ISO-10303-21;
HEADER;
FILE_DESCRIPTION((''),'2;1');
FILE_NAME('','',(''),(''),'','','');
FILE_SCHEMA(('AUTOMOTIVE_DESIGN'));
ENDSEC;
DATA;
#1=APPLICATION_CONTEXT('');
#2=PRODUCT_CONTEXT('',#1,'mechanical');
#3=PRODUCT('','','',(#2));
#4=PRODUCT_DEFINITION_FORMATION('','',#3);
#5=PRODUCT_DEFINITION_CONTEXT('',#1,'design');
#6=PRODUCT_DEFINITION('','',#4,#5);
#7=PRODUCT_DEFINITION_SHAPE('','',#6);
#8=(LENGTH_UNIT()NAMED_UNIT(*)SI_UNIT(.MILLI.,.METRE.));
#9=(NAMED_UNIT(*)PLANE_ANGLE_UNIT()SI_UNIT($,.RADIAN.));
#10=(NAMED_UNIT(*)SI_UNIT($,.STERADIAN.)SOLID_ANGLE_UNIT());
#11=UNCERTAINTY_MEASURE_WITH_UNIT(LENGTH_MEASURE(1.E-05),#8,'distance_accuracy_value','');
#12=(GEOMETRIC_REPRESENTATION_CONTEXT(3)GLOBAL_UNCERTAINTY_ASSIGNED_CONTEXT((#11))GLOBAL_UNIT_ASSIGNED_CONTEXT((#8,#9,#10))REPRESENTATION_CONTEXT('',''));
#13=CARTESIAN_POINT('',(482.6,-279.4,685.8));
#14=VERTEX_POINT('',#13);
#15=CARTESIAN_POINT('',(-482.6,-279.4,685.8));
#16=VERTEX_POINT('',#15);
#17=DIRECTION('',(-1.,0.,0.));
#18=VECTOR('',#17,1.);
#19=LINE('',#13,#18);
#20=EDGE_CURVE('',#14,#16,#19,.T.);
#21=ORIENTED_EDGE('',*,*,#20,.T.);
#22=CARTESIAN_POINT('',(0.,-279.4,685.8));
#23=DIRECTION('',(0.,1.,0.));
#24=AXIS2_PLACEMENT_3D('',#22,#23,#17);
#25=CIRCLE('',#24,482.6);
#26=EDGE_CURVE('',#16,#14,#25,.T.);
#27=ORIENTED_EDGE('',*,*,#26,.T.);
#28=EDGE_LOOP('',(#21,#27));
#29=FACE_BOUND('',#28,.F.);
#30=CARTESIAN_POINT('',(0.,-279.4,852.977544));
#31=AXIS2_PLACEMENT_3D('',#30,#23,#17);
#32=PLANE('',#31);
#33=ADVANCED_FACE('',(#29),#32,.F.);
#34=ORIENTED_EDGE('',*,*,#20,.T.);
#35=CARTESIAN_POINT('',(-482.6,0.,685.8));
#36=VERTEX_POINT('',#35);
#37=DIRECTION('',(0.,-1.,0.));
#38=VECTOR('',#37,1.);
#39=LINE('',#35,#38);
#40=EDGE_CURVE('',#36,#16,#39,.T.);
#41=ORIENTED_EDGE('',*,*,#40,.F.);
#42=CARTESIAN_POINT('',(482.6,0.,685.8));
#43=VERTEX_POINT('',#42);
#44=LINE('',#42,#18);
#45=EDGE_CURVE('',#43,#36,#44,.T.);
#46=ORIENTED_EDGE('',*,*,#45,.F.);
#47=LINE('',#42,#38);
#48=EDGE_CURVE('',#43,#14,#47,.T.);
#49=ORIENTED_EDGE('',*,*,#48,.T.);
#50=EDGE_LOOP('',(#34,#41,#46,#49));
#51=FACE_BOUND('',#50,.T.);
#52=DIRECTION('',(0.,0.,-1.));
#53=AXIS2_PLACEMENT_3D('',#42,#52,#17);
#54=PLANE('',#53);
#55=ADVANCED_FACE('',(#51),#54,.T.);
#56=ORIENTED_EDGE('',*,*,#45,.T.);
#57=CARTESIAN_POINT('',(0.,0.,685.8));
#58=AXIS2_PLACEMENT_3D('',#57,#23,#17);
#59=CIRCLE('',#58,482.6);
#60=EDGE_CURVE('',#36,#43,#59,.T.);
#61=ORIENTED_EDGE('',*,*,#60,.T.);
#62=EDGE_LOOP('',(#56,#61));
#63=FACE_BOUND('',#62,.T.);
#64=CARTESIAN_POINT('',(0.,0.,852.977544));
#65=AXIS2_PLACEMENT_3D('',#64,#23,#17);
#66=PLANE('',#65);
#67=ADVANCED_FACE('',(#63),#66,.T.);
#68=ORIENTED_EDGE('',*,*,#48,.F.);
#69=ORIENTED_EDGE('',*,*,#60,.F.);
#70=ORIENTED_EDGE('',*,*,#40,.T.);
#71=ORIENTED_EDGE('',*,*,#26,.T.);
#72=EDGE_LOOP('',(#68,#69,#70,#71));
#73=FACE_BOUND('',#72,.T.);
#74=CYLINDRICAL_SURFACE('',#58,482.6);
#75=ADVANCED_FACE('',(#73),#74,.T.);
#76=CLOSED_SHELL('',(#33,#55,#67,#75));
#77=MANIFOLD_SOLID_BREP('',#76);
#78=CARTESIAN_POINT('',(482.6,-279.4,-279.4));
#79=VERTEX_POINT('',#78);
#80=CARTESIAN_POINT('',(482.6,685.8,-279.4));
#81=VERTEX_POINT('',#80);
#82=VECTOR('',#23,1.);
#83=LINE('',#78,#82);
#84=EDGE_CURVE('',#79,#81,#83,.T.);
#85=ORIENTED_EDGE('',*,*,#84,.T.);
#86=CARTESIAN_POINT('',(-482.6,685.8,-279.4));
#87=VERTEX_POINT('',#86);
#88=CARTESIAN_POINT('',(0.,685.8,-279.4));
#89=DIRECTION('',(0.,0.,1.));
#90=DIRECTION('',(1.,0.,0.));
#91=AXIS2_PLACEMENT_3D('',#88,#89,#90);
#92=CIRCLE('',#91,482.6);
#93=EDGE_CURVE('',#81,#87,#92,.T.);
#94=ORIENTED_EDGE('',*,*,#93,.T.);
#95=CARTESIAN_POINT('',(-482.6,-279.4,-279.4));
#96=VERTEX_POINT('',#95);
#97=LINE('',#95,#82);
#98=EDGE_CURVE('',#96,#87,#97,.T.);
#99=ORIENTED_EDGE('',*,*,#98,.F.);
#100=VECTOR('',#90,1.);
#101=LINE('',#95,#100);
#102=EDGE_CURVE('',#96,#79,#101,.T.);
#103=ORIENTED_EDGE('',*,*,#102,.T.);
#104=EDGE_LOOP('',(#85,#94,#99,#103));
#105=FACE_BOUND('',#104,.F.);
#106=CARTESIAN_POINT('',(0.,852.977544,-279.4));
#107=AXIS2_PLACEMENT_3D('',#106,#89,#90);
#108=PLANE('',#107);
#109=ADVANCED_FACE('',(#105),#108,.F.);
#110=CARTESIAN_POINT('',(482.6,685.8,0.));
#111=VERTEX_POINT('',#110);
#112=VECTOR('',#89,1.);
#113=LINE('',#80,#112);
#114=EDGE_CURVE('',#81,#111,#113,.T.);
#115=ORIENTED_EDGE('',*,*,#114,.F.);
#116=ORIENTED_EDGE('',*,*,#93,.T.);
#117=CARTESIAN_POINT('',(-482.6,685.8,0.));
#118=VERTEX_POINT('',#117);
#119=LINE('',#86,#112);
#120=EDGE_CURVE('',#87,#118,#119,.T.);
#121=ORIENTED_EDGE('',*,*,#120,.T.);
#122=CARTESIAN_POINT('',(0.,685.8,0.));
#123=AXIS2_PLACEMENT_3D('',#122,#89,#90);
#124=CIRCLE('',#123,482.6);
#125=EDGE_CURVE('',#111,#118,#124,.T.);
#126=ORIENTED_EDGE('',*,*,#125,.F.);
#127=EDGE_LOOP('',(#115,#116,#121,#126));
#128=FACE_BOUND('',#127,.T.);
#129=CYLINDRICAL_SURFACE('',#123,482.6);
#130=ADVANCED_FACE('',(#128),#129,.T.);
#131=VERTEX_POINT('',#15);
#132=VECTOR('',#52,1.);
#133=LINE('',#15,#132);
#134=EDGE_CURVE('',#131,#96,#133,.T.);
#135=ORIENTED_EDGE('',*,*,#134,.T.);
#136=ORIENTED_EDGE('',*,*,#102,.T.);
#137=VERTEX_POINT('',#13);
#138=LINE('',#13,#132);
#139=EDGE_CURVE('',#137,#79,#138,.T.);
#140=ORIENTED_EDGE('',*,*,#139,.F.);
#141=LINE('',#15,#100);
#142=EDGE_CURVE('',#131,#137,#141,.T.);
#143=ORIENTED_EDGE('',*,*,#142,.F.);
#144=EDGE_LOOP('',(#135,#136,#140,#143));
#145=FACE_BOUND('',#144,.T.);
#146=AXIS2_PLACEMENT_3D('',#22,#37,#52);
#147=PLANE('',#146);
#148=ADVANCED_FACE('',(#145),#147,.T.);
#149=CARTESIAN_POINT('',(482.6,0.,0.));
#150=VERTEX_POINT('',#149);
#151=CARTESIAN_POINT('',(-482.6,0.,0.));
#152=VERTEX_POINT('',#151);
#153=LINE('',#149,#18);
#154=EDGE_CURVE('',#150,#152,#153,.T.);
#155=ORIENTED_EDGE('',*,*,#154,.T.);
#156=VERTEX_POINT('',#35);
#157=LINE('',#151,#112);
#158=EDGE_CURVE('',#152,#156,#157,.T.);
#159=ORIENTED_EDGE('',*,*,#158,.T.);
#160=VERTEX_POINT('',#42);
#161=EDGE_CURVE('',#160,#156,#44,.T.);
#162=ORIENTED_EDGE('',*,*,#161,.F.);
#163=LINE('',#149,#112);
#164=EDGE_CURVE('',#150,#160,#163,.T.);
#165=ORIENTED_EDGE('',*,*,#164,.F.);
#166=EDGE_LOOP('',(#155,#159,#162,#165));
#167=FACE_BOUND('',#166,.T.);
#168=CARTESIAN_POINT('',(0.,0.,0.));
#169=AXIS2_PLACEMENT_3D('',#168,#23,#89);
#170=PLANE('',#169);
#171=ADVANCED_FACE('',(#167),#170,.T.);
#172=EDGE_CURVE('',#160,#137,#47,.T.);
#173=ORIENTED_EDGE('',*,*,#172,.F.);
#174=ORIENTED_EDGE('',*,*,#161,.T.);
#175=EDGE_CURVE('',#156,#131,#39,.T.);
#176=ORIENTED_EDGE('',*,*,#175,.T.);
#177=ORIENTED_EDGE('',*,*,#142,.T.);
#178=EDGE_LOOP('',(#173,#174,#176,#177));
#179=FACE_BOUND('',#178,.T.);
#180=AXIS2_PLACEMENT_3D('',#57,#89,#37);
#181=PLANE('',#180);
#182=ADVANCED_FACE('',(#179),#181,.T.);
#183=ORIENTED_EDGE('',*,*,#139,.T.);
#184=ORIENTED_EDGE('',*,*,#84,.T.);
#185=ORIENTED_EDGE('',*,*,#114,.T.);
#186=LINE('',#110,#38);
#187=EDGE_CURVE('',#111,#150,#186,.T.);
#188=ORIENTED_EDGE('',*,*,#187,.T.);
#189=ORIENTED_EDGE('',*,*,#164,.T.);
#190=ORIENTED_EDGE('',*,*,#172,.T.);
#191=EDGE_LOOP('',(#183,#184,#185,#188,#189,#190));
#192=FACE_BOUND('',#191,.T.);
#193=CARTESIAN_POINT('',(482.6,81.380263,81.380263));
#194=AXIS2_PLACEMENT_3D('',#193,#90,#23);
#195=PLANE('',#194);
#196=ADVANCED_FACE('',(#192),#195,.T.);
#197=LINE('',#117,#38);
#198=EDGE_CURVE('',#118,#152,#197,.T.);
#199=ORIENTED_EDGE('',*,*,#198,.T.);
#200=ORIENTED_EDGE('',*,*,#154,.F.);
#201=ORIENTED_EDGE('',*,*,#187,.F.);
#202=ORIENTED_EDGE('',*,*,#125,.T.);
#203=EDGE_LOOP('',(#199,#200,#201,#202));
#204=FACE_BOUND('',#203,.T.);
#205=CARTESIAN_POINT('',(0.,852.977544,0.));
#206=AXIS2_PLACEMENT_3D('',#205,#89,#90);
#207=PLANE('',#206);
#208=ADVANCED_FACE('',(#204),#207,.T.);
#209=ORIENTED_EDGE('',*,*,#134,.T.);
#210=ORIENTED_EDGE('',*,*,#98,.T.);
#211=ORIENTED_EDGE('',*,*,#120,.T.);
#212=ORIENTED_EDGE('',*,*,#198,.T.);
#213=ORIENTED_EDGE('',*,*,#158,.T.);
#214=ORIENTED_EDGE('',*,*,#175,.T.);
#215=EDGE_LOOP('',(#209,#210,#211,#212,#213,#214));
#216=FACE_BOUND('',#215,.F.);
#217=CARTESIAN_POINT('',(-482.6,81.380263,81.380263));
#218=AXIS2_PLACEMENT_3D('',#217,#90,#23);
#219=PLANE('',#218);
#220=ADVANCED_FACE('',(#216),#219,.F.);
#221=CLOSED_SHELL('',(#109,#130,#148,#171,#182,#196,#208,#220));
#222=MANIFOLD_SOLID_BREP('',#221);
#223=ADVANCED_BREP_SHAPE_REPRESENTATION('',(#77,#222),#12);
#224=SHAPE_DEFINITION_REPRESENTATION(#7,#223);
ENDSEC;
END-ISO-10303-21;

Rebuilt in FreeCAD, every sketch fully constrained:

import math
import FreeCAD as App
import Part
import Sketcher
from FreeCAD import Vector
Q = App.Units.Quantity

doc = App.newDocument("Part")
body = doc.addObject("PartDesign::Body", "Body")

# Sketch on YZ plane
sketch1 = body.newObject("Sketcher::SketchObject", "Sketch")
sketch1.AttachmentSupport = (doc.getObject("YZ_Plane"), [""])
sketch1.MapMode = "FlatFace"
sketch1.addGeometry([
    Part.LineSegment(Vector(0, 685.8, 0), Vector(-279.4, 685.8, 0)),  # 0
    Part.LineSegment(Vector(-279.4, 685.8, 0), Vector(-279.4, -279.4, 0)),  # 1
    Part.LineSegment(Vector(-279.4, -279.4, 0), Vector(685.8, -279.4, 0)),  # 2
    Part.LineSegment(Vector(685.8, -279.4, 0), Vector(685.8, 0, 0)),  # 3
    Part.LineSegment(Vector(685.8, 0, 0), Vector(0, 0, 0)),  # 4
    Part.LineSegment(Vector(0, 0, 0), Vector(0, 685.8, 0)),  # 5
], False)
sketch1.addConstraint([
    Sketcher.Constraint("Coincident", 0, 2, 1, 1),
    Sketcher.Constraint("Coincident", 1, 2, 2, 1),
    Sketcher.Constraint("Coincident", 2, 2, 3, 1),
    Sketcher.Constraint("Coincident", 3, 2, 4, 1),
    Sketcher.Constraint("Coincident", 4, 2, 5, 1),
    Sketcher.Constraint("Coincident", 5, 2, 0, 1),
    Sketcher.Constraint("Horizontal", 0),
    Sketcher.Constraint("Vertical", 1),
    Sketcher.Constraint("Horizontal", 2),
    Sketcher.Constraint("Vertical", 3),
    Sketcher.Constraint("Horizontal", 4),
    Sketcher.Constraint("Vertical", 5),
    Sketcher.Constraint("Coincident", 4, 2, -1, 1),
    Sketcher.Constraint("Equal", 2, 1),
    Sketcher.Constraint("Equal", 0, 3),
    Sketcher.Constraint("DistanceX", 0, 2, 0, 1, Q("11 in")),
    Sketcher.Constraint("DistanceX", 2, 1, 2, 2, Q("38 in")),
])
pad1 = body.newObject("PartDesign::Pad", "Pad")
pad1.Profile = sketch1
pad1.Length = Q("38 in")
pad1.Midplane = True

# Sketch on XY plane
sketch2 = body.newObject("Sketcher::SketchObject", "Sketch001")
sketch2.AttachmentSupport = (doc.getObject("XY_Plane"), [""])
sketch2.MapMode = "FlatFace"
sketch2.addGeometry([
    Part.LineSegment(Vector(-482.6, 685.8, 0), Vector(482.6, 685.8, 0)),
    Part.ArcOfCircle(Part.Circle(Vector(0, 685.8, 0), Vector(0, 0, 1), 482.6), math.radians(0), math.radians(180)),
], False)
sketch2.addConstraint([
    Sketcher.Constraint("Coincident", 0, 1, 1, 2),
    Sketcher.Constraint("Coincident", 1, 1, 0, 2),
    Sketcher.Constraint("Horizontal", 0),
    Sketcher.Constraint("PointOnObject", 1, 3, -2),
    Sketcher.Constraint("Horizontal", 1, 3, 0, 1),
    Sketcher.Constraint("Radius", 1, Q("19 in")),
    Sketcher.Constraint("DistanceY", -1, 1, 1, 3, Q("27 in")),
])
pad2 = body.newObject("PartDesign::Pad", "Pad001")
pad2.Profile = sketch2
pad2.Length = Q("11 in")
pad2.Reversed = True
body2 = doc.addObject("PartDesign::Body", "Body001")

# Sketch on XZ plane
sketch3 = body2.newObject("Sketcher::SketchObject", "Sketch002")
sketch3.AttachmentSupport = (doc.getObject("XZ_Plane001"), [""])
sketch3.MapMode = "FlatFace"
sketch3.addGeometry([
    Part.LineSegment(Vector(482.6, 685.8, 0), Vector(-482.6, 685.8, 0)),
    Part.ArcOfCircle(Part.Circle(Vector(0, 685.8, 0), Vector(0, 0, 1), 482.6), math.radians(0), math.radians(180)),
], False)
sketch3.addConstraint([
    Sketcher.Constraint("Coincident", 0, 1, 1, 1),
    Sketcher.Constraint("Coincident", 1, 2, 0, 2),
    Sketcher.Constraint("Horizontal", 0),
    Sketcher.Constraint("PointOnObject", 1, 3, -2),
    Sketcher.Constraint("Horizontal", 1, 3, 0, 1),
    Sketcher.Constraint("Radius", 1, Q("19 in")),
    Sketcher.Constraint("DistanceY", -1, 1, 1, 3, Q("27 in")),
])
pad3 = body2.newObject("PartDesign::Pad", "Pad002")
pad3.Profile = sketch3
pad3.Length = Q("11 in")

doc.recompute()
